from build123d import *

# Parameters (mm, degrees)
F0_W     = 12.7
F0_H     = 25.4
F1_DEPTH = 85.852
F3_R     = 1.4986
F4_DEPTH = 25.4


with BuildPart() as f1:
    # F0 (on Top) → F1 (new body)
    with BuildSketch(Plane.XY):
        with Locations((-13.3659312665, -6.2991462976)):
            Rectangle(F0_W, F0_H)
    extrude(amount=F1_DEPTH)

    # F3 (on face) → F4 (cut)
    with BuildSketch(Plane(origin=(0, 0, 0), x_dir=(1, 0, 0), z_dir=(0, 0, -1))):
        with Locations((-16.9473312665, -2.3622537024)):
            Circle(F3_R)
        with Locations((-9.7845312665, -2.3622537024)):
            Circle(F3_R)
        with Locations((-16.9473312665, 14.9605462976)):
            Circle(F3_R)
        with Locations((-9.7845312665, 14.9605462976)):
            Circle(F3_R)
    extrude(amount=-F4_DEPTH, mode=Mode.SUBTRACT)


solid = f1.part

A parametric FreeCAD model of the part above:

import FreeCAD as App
import Part
import Sketcher
Q = App.Units.Quantity

doc = App.newDocument("Part")
body = doc.addObject("PartDesign::Body", "Body")

# Sketch on XY plane
sketch1 = body.newObject("Sketcher::SketchObject", "Sketch")
sketch1.AttachmentSupport = (doc.getObject("XY_Plane"), [""])
sketch1.MapMode = "FlatFace"
sketch1.addGeometry([
    Part.LineSegment(App.Vector(-19.715931, 6.400854, 0), App.Vector(-19.715931, -18.999146, 0)),
    Part.LineSegment(App.Vector(-19.715931, -18.999146, 0), App.Vector(-7.015931, -18.999146, 0)),
    Part.LineSegment(App.Vector(-7.015931, -18.999146, 0), App.Vector(-7.015931, 6.400854, 0)),
    Part.LineSegment(App.Vector(-7.015931, 6.400854, 0), App.Vector(-19.715931, 6.400854, 0)),
], False)
sketch1.addConstraint([
    Sketcher.Constraint("Coincident", 0, 2, 1, 1),
    Sketcher.Constraint("Coincident", 1, 2, 2, 1),
    Sketcher.Constraint("Coincident", 2, 2, 3, 1),
    Sketcher.Constraint("Coincident", 3, 2, 0, 1),
    Sketcher.Constraint("Vertical", 0),
    Sketcher.Constraint("Horizontal", 1),
    Sketcher.Constraint("Vertical", 2),
    Sketcher.Constraint("Horizontal", 3),
    Sketcher.Constraint("DistanceY", 0, 2, 0, 1, Q("1 in")),
    Sketcher.Constraint("DistanceX", 1, 1, 1, 2, Q("0.5 in")),
    Sketcher.Constraint("DistanceX", 0, 2, -1, 1, Q("19.715931 mm")),
    Sketcher.Constraint("DistanceY", 0, 2, -1, 1, Q("18.999146 mm")),
])
pad1 = body.newObject("PartDesign::Pad", "Pad")
pad1.Profile = sketch1
pad1.Length = Q("3.38 in")

# Sketch on XY plane
sketch2 = body.newObject("Sketcher::SketchObject", "Sketch001")
sketch2.AttachmentSupport = (doc.getObject("XY_Plane"), [""])
sketch2.MapMode = "FlatFace"
sketch2.addGeometry([
    Part.Circle(App.Vector(-16.947331, 2.362254, 0), App.Vector(0, 0, 1), 1.4986),
    Part.Circle(App.Vector(-9.784531, 2.362254, 0), App.Vector(0, 0, 1), 1.4986),
    Part.Circle(App.Vector(-16.947331, -14.960546, 0), App.Vector(0, 0, 1), 1.4986),
    Part.Circle(App.Vector(-9.784531, -14.960546, 0), App.Vector(0, 0, 1), 1.4986),
], False)
sketch2.addConstraint([
    Sketcher.Constraint("Equal", 0, 1),
    Sketcher.Constraint("Equal", 1, 2),
    Sketcher.Constraint("Equal", 2, 3),
    Sketcher.Constraint("Horizontal", 0, 3, 1, 3),
    Sketcher.Constraint("Horizontal", 2, 3, 3, 3),
    Sketcher.Constraint("Vertical", 0, 3, 2, 3),
    Sketcher.Constraint("Vertical", 1, 3, 3, 3),
    Sketcher.Constraint("Diameter", 0, Q("0.118 in")),
    Sketcher.Constraint("DistanceX", 0, 3, 1, 3, Q("0.282 in")),
    Sketcher.Constraint("DistanceY", 2, 3, 0, 3, Q("0.682 in")),
    Sketcher.Constraint("DistanceX", 0, 3, -1, 1, Q("16.947331 mm")),
    Sketcher.Constraint("DistanceY", -1, 1, 0, 3, Q("2.362254 mm")),
])
pocket1 = body.newObject("PartDesign::Pocket", "Pocket")
pocket1.Profile = sketch2
pocket1.Length = Q("1 in")
pocket1.Reversed = True

doc.recompute()
